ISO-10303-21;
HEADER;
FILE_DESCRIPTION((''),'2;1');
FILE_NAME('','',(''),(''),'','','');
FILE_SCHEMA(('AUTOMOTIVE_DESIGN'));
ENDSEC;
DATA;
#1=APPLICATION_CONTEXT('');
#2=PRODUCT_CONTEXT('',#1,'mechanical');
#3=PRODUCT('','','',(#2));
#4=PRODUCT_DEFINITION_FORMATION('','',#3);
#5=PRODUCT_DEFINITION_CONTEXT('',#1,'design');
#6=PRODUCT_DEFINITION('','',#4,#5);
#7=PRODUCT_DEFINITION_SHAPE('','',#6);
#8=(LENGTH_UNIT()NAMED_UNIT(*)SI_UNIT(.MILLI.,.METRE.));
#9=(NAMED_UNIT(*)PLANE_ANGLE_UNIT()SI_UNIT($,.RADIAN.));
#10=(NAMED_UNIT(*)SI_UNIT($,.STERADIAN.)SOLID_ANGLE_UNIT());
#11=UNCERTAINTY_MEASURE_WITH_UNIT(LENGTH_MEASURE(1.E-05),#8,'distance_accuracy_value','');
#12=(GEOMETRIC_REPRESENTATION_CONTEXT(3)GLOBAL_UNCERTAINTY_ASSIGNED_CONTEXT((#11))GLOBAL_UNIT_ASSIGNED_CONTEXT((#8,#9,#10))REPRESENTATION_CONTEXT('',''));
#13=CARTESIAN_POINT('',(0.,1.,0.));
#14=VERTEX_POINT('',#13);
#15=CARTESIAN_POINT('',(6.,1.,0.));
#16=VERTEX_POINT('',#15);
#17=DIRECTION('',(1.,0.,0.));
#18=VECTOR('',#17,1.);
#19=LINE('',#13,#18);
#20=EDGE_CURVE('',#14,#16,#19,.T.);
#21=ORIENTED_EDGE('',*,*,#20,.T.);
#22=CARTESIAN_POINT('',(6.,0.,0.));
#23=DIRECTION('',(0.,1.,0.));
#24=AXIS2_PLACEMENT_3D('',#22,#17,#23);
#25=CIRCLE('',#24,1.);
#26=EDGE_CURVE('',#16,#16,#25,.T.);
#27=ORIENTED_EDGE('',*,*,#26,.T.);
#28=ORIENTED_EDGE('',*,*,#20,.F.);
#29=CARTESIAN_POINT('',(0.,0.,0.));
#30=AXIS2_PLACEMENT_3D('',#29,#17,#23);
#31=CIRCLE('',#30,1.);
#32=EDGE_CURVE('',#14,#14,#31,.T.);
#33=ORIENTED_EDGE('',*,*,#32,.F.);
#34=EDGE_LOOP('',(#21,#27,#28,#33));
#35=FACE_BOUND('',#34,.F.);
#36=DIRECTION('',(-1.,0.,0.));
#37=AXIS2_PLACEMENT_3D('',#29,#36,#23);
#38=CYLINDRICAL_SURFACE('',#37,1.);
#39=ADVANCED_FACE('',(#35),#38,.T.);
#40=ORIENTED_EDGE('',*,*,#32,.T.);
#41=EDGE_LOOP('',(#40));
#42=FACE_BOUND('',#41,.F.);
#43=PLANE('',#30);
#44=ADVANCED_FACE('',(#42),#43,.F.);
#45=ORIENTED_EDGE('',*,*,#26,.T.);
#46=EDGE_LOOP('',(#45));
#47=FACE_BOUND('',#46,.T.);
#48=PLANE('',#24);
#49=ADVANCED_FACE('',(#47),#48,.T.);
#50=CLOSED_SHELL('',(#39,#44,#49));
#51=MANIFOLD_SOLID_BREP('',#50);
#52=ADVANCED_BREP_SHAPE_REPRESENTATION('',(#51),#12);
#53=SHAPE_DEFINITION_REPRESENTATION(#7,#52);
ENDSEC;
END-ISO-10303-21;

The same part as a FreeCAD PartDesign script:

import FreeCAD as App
import Part
import Sketcher
from FreeCAD import Vector

doc = App.newDocument("Part")
params = doc.addObject("Spreadsheet::Sheet", "Params")
for row, (alias, value) in enumerate([
    ("sketch1_diameter", "2 mm"),
    ("pad1_length", "6 mm"),
], start=1):
    params.set(f"A{row}", alias)
    params.set(f"B{row}", "=" + value)
    params.setAlias(f"B{row}", alias)

body = doc.addObject("PartDesign::Body", "Body")

# Sketch on YZ plane
sketch1 = body.newObject("Sketcher::SketchObject", "Sketch")
sketch1.AttachmentSupport = (doc.getObject("YZ_Plane"), [""])
sketch1.MapMode = "FlatFace"
sketch1.addGeometry(Part.Circle(Vector(0, 0, 0), Vector(0, 0, 1), 1), False)
sketch1.addConstraint([
    Sketcher.Constraint("Coincident", 0, 3, -1, 1),
    Sketcher.Constraint("Diameter", 0, 2.0),
])
sketch1.setExpression("Constraints[1]", "Params.sketch1_diameter")
pad1 = body.newObject("PartDesign::Pad", "Pad")
pad1.Profile = sketch1
pad1.setExpression("Length", "Params.pad1_length")

doc.recompute()
